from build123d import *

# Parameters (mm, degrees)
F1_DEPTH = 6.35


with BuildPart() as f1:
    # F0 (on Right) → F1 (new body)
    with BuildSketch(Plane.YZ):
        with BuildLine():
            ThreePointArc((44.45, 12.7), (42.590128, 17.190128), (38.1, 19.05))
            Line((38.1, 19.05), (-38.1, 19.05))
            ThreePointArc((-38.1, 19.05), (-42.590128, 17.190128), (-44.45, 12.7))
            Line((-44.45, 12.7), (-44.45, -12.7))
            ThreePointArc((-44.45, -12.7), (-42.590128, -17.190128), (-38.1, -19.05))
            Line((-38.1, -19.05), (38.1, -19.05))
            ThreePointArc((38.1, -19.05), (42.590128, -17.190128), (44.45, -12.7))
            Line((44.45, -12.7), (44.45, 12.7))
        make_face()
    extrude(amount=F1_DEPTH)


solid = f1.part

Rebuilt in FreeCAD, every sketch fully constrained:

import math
import FreeCAD as App
import Part
import Sketcher
Q = App.Units.Quantity

doc = App.newDocument("Part")
body = doc.addObject("PartDesign::Body", "Body")

# Sketch on YZ plane
sketch1 = body.newObject("Sketcher::SketchObject", "Sketch")
sketch1.AttachmentSupport = (doc.getObject("YZ_Plane"), [""])
sketch1.MapMode = "FlatFace"
sketch1.addGeometry(Part.ArcOfCircle(Part.Circle(App.Vector(38, 13, 0), App.Vector(0, 0, 1), 6), math.radians(0), math.radians(90)), False)
sketch1.addGeometry(Part.LineSegment(App.Vector(38, 19, 0), App.Vector(-38, 19, 0)), False)
sketch1.addGeometry(Part.ArcOfCircle(Part.Circle(App.Vector(-38, 13, 0), App.Vector(0, 0, 1), 6), math.radians(90), math.radians(180)), False)
sketch1.addGeometry(Part.LineSegment(App.Vector(-44, 13, 0), App.Vector(-44, -13, 0)), False)
sketch1.addGeometry(Part.ArcOfCircle(Part.Circle(App.Vector(-38, -13, 0), App.Vector(0, 0, 1), 6), math.radians(-180), math.radians(-90)), False)
sketch1.addGeometry(Part.LineSegment(App.Vector(-38, -19, 0), App.Vector(38, -19, 0)), False)
sketch1.addGeometry(Part.ArcOfCircle(Part.Circle(App.Vector(38, -13, 0), App.Vector(0, 0, 1), 6), math.radians(-90), math.radians(0)), False)
sketch1.addGeometry(Part.LineSegment(App.Vector(44, -13, 0), App.Vector(44, 13, 0)), False)
sketch1.addConstraint(Sketcher.Constraint("Tangent", 0, 2, 1, 1))
sketch1.addConstraint(Sketcher.Constraint("Tangent", 1, 2, 2, 1))
sketch1.addConstraint(Sketcher.Constraint("Tangent", 2, 2, 3, 1))
sketch1.addConstraint(Sketcher.Constraint("Tangent", 3, 2, 4, 1))
sketch1.addConstraint(Sketcher.Constraint("Tangent", 4, 2, 5, 1))
sketch1.addConstraint(Sketcher.Constraint("Tangent", 5, 2, 6, 1))
sketch1.addConstraint(Sketcher.Constraint("Tangent", 6, 2, 7, 1))
sketch1.addConstraint(Sketcher.Constraint("Tangent", 7, 2, 0, 1))
sketch1.addConstraint(Sketcher.Constraint("Horizontal", 1))
sketch1.addConstraint(Sketcher.Constraint("Vertical", 3))
sketch1.addConstraint(Sketcher.Constraint("Horizontal", 5))
sketch1.addConstraint(Sketcher.Constraint("Vertical", 7))
sketch1.addConstraint(Sketcher.Constraint("Equal", 0, 2))
sketch1.addConstraint(Sketcher.Constraint("Equal", 2, 4))
sketch1.addConstraint(Sketcher.Constraint("Equal", 4, 6))
sketch1.addConstraint(Sketcher.Constraint("Symmetric", 0, 3, 4, 3, -1, 1))
sketch1.addConstraint(Sketcher.Constraint("DistanceX", 1, 2, 1, 1, Q("3 in")))
sketch1.addConstraint(Sketcher.Constraint("DistanceY", 3, 2, 3, 1, Q("1 in")))
sketch1.addConstraint(Sketcher.Constraint("Radius", 0, Q("0.25 in")))
pad1 = body.newObject("PartDesign::Pad", "Pad")
pad1.Profile = sketch1
pad1.Length = Q("0.25 in")

doc.recompute()
